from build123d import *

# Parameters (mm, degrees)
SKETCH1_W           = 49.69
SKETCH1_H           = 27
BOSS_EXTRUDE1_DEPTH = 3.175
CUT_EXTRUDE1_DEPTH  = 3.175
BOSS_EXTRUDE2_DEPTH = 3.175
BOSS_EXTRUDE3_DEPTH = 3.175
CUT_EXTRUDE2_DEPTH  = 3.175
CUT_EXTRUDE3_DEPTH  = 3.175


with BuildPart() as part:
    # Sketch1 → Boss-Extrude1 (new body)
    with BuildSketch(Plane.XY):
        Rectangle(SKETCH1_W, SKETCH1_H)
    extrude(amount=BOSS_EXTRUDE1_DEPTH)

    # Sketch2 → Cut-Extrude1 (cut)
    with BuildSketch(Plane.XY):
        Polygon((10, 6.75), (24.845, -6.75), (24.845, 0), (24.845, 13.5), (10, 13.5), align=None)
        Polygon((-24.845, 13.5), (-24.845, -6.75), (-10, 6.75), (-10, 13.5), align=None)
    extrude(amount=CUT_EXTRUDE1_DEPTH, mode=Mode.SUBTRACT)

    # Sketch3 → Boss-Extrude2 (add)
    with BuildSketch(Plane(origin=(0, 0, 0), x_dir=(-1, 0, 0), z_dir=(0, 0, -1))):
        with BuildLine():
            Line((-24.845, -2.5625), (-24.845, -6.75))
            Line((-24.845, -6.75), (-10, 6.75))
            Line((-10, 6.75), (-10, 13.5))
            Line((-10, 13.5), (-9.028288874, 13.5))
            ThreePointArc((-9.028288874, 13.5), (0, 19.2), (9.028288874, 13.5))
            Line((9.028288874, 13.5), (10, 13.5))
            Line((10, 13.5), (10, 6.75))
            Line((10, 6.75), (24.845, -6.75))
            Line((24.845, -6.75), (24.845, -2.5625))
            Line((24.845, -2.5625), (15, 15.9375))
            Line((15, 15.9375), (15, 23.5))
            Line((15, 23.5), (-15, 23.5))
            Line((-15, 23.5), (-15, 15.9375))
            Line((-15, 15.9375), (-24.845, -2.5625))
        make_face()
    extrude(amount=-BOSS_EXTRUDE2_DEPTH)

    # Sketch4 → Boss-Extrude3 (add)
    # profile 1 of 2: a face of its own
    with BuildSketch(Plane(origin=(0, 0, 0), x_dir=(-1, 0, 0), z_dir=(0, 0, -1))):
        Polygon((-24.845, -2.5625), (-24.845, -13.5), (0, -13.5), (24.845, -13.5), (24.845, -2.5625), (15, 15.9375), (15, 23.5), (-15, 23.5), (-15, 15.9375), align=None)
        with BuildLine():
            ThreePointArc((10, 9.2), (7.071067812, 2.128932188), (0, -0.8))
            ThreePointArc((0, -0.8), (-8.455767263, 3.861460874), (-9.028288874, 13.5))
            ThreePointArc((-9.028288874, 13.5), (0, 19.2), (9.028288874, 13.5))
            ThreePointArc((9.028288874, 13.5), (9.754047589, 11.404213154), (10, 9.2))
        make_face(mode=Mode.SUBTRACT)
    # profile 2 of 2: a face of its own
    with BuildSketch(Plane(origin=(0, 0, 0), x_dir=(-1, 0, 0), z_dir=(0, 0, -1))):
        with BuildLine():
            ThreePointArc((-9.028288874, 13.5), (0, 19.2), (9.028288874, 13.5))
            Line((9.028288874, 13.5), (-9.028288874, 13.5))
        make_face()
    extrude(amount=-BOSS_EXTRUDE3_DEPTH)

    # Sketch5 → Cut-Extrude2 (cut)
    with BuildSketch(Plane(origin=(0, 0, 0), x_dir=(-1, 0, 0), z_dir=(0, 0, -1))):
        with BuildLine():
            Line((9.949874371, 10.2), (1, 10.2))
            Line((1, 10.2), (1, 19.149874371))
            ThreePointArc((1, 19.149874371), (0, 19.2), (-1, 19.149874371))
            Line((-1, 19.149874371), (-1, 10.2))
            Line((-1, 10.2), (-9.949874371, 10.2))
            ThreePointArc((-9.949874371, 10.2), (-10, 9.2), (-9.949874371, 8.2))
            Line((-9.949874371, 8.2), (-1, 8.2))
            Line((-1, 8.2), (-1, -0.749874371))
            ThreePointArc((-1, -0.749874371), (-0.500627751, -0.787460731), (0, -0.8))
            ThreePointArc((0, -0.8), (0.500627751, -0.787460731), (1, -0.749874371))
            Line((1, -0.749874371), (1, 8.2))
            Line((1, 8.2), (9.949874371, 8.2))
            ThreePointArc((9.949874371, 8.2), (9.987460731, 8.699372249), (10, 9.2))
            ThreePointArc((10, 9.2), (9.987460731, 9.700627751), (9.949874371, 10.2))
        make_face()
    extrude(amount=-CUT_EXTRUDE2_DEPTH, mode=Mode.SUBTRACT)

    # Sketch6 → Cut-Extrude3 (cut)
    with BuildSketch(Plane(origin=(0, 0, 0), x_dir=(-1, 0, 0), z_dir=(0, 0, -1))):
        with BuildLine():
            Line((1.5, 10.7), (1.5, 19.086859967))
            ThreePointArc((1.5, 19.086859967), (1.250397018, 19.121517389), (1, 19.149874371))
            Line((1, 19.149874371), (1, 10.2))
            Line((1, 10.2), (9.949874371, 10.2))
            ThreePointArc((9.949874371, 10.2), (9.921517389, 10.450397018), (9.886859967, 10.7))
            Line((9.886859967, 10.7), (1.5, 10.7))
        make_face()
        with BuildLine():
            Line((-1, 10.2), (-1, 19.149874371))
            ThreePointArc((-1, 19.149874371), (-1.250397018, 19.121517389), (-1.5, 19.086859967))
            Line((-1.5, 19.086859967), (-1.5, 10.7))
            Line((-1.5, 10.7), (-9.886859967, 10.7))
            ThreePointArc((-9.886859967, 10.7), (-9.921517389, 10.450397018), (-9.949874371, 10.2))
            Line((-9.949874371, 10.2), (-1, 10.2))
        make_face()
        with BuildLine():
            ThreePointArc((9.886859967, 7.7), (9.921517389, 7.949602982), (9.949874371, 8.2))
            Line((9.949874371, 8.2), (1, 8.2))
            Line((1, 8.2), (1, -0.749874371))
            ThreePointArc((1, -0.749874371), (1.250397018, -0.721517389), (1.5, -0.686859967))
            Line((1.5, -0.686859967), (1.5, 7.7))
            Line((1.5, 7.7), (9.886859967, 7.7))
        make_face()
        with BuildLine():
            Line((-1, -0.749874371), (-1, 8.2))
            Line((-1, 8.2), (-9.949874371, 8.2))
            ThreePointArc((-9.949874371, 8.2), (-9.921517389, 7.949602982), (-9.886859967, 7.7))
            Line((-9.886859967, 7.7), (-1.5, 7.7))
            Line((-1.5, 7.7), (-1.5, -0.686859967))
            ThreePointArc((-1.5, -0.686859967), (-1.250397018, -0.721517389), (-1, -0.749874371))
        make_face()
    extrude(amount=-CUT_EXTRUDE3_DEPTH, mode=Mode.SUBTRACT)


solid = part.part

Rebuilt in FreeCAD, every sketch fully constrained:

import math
import FreeCAD as App
import Part
import Sketcher
Q = App.Units.Quantity

doc = App.newDocument("Part")
body = doc.addObject("PartDesign::Body", "Body")

sketch1 = body.newObject("Sketcher::SketchObject", "Sketch")
sketch1.AttachmentSupport = (doc.getObject("XY_Plane"), [""])
sketch1.MapMode = "FlatFace"
sketch1.addGeometry([
    Part.LineSegment(App.Vector(-25, 14, 0), App.Vector(-25, -14, 0)),
    Part.LineSegment(App.Vector(-25, -14, 0), App.Vector(25, -14, 0)),
    Part.LineSegment(App.Vector(25, -14, 0), App.Vector(25, 14, 0)),
    Part.LineSegment(App.Vector(25, 14, 0), App.Vector(-25, 14, 0)),
], False)
sketch1.addConstraint([
    Sketcher.Constraint("Coincident", 0, 2, 1, 1),
    Sketcher.Constraint("Coincident", 1, 2, 2, 1),
    Sketcher.Constraint("Coincident", 2, 2, 3, 1),
    Sketcher.Constraint("Coincident", 3, 2, 0, 1),
    Sketcher.Constraint("Vertical", 0),
    Sketcher.Constraint("Horizontal", 1),
    Sketcher.Constraint("Vertical", 2),
    Sketcher.Constraint("Horizontal", 3),
    Sketcher.Constraint("Symmetric", 0, 2, 2, 2, -1, 1),
    Sketcher.Constraint("DistanceY", 0, 2, 0, 1, Q("27 mm")),
    Sketcher.Constraint("DistanceX", 1, 1, 1, 2, Q("49.69 mm")),
])
pad1 = body.newObject("PartDesign::Pad", "Pad")
pad1.Profile = sketch1
pad1.Length = 3.175

sketch2 = body.newObject("Sketcher::SketchObject", "Sketch001")
sketch2.AttachmentSupport = (doc.getObject("XY_Plane"), [""])
sketch2.MapMode = "FlatFace"
sketch2.addGeometry([
    Part.LineSegment(App.Vector(10, 7, 0), App.Vector(25, -7, 0)),
    Part.LineSegment(App.Vector(25, -7, 0), App.Vector(25, 14, 0)),
    Part.LineSegment(App.Vector(25, 14, 0), App.Vector(10, 14, 0)),
    Part.LineSegment(App.Vector(10, 14, 0), App.Vector(10, 7, 0)),
    Part.LineSegment(App.Vector(-25, 14, 0), App.Vector(-25, -7, 0)),
    Part.LineSegment(App.Vector(-25, -7, 0), App.Vector(-10, 7, 0)),
    Part.LineSegment(App.Vector(-10, 7, 0), App.Vector(-10, 14, 0)),
    Part.LineSegment(App.Vector(-10, 14, 0), App.Vector(-25, 14, 0)),
], False)
sketch2.addConstraint([
    Sketcher.Constraint("Coincident", 0, 2, 1, 1),
    Sketcher.Constraint("Coincident", 1, 2, 2, 1),
    Sketcher.Constraint("Coincident", 2, 2, 3, 1),
    Sketcher.Constraint("Coincident", 3, 2, 0, 1),
    Sketcher.Constraint("Coincident", 4, 2, 5, 1),
    Sketcher.Constraint("Coincident", 5, 2, 6, 1),
    Sketcher.Constraint("Coincident", 6, 2, 7, 1),
    Sketcher.Constraint("Coincident", 7, 2, 4, 1),
    Sketcher.Constraint("Vertical", 1),
    Sketcher.Constraint("Horizontal", 2),
    Sketcher.Constraint("Vertical", 3),
    Sketcher.Constraint("Vertical", 4),
    Sketcher.Constraint("Vertical", 6),
    Sketcher.Constraint("Horizontal", 7),
    Sketcher.Constraint("Symmetric", 0, 2, 4, 2, -2),
    Sketcher.Constraint("Symmetric", 3, 2, 5, 2, -2),
    Sketcher.Constraint("Horizontal", 2, 2, 6, 2),
    Sketcher.Constraint("DistanceX", -1, 1, 2, 2, Q("10 mm")),
    Sketcher.Constraint("DistanceY", 1, 1, 1, 2, Q("20.25 mm")),
    Sketcher.Constraint("DistanceY", 3, 2, 3, 1, Q("6.75 mm")),
    Sketcher.Constraint("DistanceY", -1, 1, 1, 2, Q("13.5 mm")),
    Sketcher.Constraint("DistanceX", 2, 2, 2, 1, Q("14.845 mm")),
])
pocket1 = body.newObject("PartDesign::Pocket", "Pocket")
pocket1.Profile = sketch2
pocket1.Length = 3.175
pocket1.Reversed = True

sketch3 = body.newObject("Sketcher::SketchObject", "Sketch002")
sketch3.AttachmentSupport = (doc.getObject("XY_Plane"), [""])
sketch3.MapMode = "FlatFace"
sketch3.addGeometry([
    Part.LineSegment(App.Vector(24.8, -2.6, 0), App.Vector(24.8, -6.8, 0)),
    Part.LineSegment(App.Vector(24.8, -6.8, 0), App.Vector(10, 6.8, 0)),
    Part.LineSegment(App.Vector(10, 6.8, 0), App.Vector(10, 13.5, 0)),
    Part.LineSegment(App.Vector(10, 13.5, 0), App.Vector(9, 13.5, 0)),
    Part.ArcOfCircle(Part.Circle(App.Vector(0, 9.2, 0), App.Vector(0, 0, 1), 10), math.radians(25), math.radians(155)),
    Part.LineSegment(App.Vector(-9, 13.5, 0), App.Vector(-10, 13.5, 0)),
    Part.LineSegment(App.Vector(-10, 13.5, 0), App.Vector(-10, 6.8, 0)),
    Part.LineSegment(App.Vector(-10, 6.8, 0), App.Vector(-24.8, -6.8, 0)),
    Part.LineSegment(App.Vector(-24.8, -6.8, 0), App.Vector(-24.8, -2.6, 0)),
    Part.LineSegment(App.Vector(-24.8, -2.6, 0), App.Vector(-15, 15.9, 0)),
    Part.LineSegment(App.Vector(-15, 15.9, 0), App.Vector(-15, 23.5, 0)),
    Part.LineSegment(App.Vector(-15, 23.5, 0), App.Vector(15, 23.5, 0)),
    Part.LineSegment(App.Vector(15, 23.5, 0), App.Vector(15, 15.9, 0)),
    Part.LineSegment(App.Vector(15, 15.9, 0), App.Vector(24.8, -2.6, 0)),
], False)
sketch3.addConstraint([
    Sketcher.Constraint("Coincident", 0, 2, 1, 1),
    Sketcher.Constraint("Coincident", 1, 2, 2, 1),
    Sketcher.Constraint("Coincident", 2, 2, 3, 1),
    Sketcher.Constraint("Coincident", 3, 2, 4, 1),
    Sketcher.Constraint("Coincident", 4, 2, 5, 1),
    Sketcher.Constraint("Coincident", 5, 2, 6, 1),
    Sketcher.Constraint("Coincident", 6, 2, 7, 1),
    Sketcher.Constraint("Coincident", 7, 2, 8, 1),
    Sketcher.Constraint("Coincident", 8, 2, 9, 1),
    Sketcher.Constraint("Coincident", 9, 2, 10, 1),
    Sketcher.Constraint("Coincident", 10, 2, 11, 1),
    Sketcher.Constraint("Coincident", 11, 2, 12, 1),
    Sketcher.Constraint("Coincident", 12, 2, 13, 1),
    Sketcher.Constraint("Coincident", 13, 2, 0, 1),
    Sketcher.Constraint("Vertical", 0),
    Sketcher.Constraint("Vertical", 2),
    Sketcher.Constraint("Horizontal", 3),
    Sketcher.Constraint("Horizontal", 5),
    Sketcher.Constraint("Vertical", 6),
    Sketcher.Constraint("Vertical", 8),
    Sketcher.Constraint("Vertical", 10),
    Sketcher.Constraint("Horizontal", 11),
    Sketcher.Constraint("Vertical", 12),
    Sketcher.Constraint("Symmetric", 3, 2, 4, 2, -2),
    Sketcher.Constraint("Symmetric", 1, 2, 6, 2, -2),
    Sketcher.Constraint("Symmetric", 0, 2, 7, 2, -2),
    Sketcher.Constraint("Symmetric", 9, 2, 12, 2, -2),
    Sketcher.Constraint("Horizontal", 8, 2, 13, 2),
    Sketcher.Constraint("Radius", 4, Q("10 mm")),
    Sketcher.Constraint("DistanceX", 11, 1, 11, 2, Q("30 mm")),
    Sketcher.Constraint("DistanceX", -1, 1, 1, 2, Q("10 mm")),
    Sketcher.Constraint("DistanceY", 5, 2, 10, 2, Q("10 mm")),
    Sketcher.Constraint("DistanceY", 2, 1, 2, 2, Q("6.75 mm")),
    Sketcher.Constraint("DistanceY", -1, 1, 4, 3, Q("9.2 mm")),
    Sketcher.Constraint("DistanceY", -1, 1, 2, 2, Q("13.5 mm")),
    Sketcher.Constraint("DistanceY", 0, 2, 1, 2, Q("13.5 mm")),
    Sketcher.Constraint("DistanceY", 8, 2, 9, 2, Q("18.5 mm")),
    Sketcher.Constraint("DistanceY", 0, 2, 0, 1, Q("4.1875 mm")),
    Sketcher.Constraint("DistanceX", -1, 1, 0, 2, Q("24.845 mm")),
])
pad2 = body.newObject("PartDesign::Pad", "Pad001")
pad2.Profile = sketch3
pad2.Length = 3.175

sketch4 = body.newObject("Sketcher::SketchObject", "Sketch003")
sketch4.AttachmentSupport = (doc.getObject("XY_Plane"), [""])
sketch4.MapMode = "FlatFace"
sketch4.addGeometry([
    Part.LineSegment(App.Vector(24.8, -2.6, 0), App.Vector(24.8, -13.5, 0)),
    Part.LineSegment(App.Vector(24.8, -13.5, 0), App.Vector(-24.8, -13.5, 0)),
    Part.LineSegment(App.Vector(-24.8, -13.5, 0), App.Vector(-24.8, -2.6, 0)),
    Part.LineSegment(App.Vector(-24.8, -2.6, 0), App.Vector(-15, 15.9, 0)),
    Part.LineSegment(App.Vector(-15, 15.9, 0), App.Vector(-15, 23.5, 0)),
    Part.LineSegment(App.Vector(-15, 23.5, 0), App.Vector(15, 23.5, 0)),
    Part.LineSegment(App.Vector(15, 23.5, 0), App.Vector(15, 15.9, 0)),
    Part.LineSegment(App.Vector(15, 15.9, 0), App.Vector(24.8, -2.6, 0)),
    Part.ArcOfCircle(Part.Circle(App.Vector(0, 9.2, 0), App.Vector(0, 0, 1), 10), math.radians(155), math.radians(180)),
    Part.ArcOfCircle(Part.Circle(App.Vector(0, 9.2, 0), App.Vector(0, 0, 1), 10), math.radians(180), math.radians(270)),
    Part.ArcOfCircle(Part.Circle(App.Vector(0, 9.2, 0), App.Vector(0, 0, 1), 10), math.radians(-90), math.radians(25)),
    Part.LineSegment(App.Vector(9, 13.5, 0), App.Vector(-9, 13.5, 0)),
], False)
sketch4.addConstraint([
    Sketcher.Constraint("Coincident", 0, 2, 1, 1),
    Sketcher.Constraint("Coincident", 1, 2, 2, 1),
    Sketcher.Constraint("Coincident", 2, 2, 3, 1),
    Sketcher.Constraint("Coincident", 3, 2, 4, 1),
    Sketcher.Constraint("Coincident", 4, 2, 5, 1),
    Sketcher.Constraint("Coincident", 5, 2, 6, 1),
    Sketcher.Constraint("Coincident", 6, 2, 7, 1),
    Sketcher.Constraint("Coincident", 7, 2, 0, 1),
    Sketcher.Constraint("Tangent", 8, 2, 9, 1),
    Sketcher.Constraint("Tangent", 9, 2, 10, 1),
    Sketcher.Constraint("Coincident", 10, 2, 11, 1),
    Sketcher.Constraint("Coincident", 11, 2, 8, 1),
    Sketcher.Constraint("Vertical", 0),
    Sketcher.Constraint("Horizontal", 1),
    Sketcher.Constraint("Vertical", 2),
    Sketcher.Constraint("Vertical", 4),
    Sketcher.Constraint("Horizontal", 5),
    Sketcher.Constraint("Vertical", 6),
    Sketcher.Constraint("Horizontal", 11),
    Sketcher.Constraint("Coincident", 10, 3, 8, 3),
    Sketcher.Constraint("Symmetric", 3, 2, 6, 2, -2),
    Sketcher.Constraint("Symmetric", 2, 2, 7, 2, -2),
    Sketcher.Constraint("PointOnObject", 8, 3, -2),
    Sketcher.Constraint("PointOnObject", 9, 2, -2),
    Sketcher.Constraint("Horizontal", 10, 3, 8, 2),
    Sketcher.Constraint("Radius", 8, Q("10 mm")),
    Sketcher.Constraint("DistanceX", 5, 1, 5, 2, Q("30 mm")),
    Sketcher.Constraint("DistanceY", 10, 2, 5, 2, Q("10 mm")),
    Sketcher.Constraint("DistanceX", 1, 2, 1, 1, Q("49.69 mm")),
    Sketcher.Constraint("DistanceY", -1, 1, 8, 3, Q("9.2 mm")),
    Sketcher.Constraint("DistanceY", 0, 2, -1, 1, Q("13.5 mm")),
    Sketcher.Constraint("DistanceY", -1, 1, 4, 2, Q("23.5 mm")),
    Sketcher.Constraint("DistanceY", 2, 2, 3, 2, Q("18.5 mm")),
    Sketcher.Constraint("DistanceY", 0, 2, 0, 1, Q("10.9375 mm")),
])
pad3 = body.newObject("PartDesign::Pad", "Pad002")
pad3.Profile = sketch4
pad3.Length = 3.175

sketch5 = body.newObject("Sketcher::SketchObject", "Sketch004")
sketch5.AttachmentSupport = (doc.getObject("XY_Plane"), [""])
sketch5.MapMode = "FlatFace"
sketch5.addGeometry([
    Part.LineSegment(App.Vector(-9.9, 10.2, 0), App.Vector(-1, 10.2, 0)),
    Part.LineSegment(App.Vector(-1, 10.2, 0), App.Vector(-1, 19.1, 0)),
    Part.ArcOfCircle(Part.Circle(App.Vector(0, 9.2, 0), App.Vector(0, 0, 1), 10), math.radians(84.26), math.radians(95.74)),
    Part.LineSegment(App.Vector(1, 19.1, 0), App.Vector(1, 10.2, 0)),
    Part.LineSegment(App.Vector(1, 10.2, 0), App.Vector(9.9, 10.2, 0)),
    Part.ArcOfCircle(Part.Circle(App.Vector(0, 9.2, 0), App.Vector(0, 0, 1), 10), math.radians(-5.74), math.radians(5.74)),
    Part.LineSegment(App.Vector(9.9, 8.2, 0), App.Vector(1, 8.2, 0)),
    Part.LineSegment(App.Vector(1, 8.2, 0), App.Vector(1, -0.7, 0)),
    Part.ArcOfCircle(Part.Circle(App.Vector(0, 9.2, 0), App.Vector(0, 0, 1), 10), math.radians(-90), math.radians(-84.26)),
    Part.ArcOfCircle(Part.Circle(App.Vector(0, 9.2, 0), App.Vector(0, 0, 1), 10), math.radians(-95.74), math.radians(-90)),
    Part.LineSegment(App.Vector(-1, -0.7, 0), App.Vector(-1, 8.2, 0)),
    Part.LineSegment(App.Vector(-1, 8.2, 0), App.Vector(-9.9, 8.2, 0)),
    Part.ArcOfCircle(Part.Circle(App.Vector(0, 9.2, 0), App.Vector(0, 0, 1), 10), math.radians(-180), math.radians(-174.26)),
    Part.ArcOfCircle(Part.Circle(App.Vector(0, 9.2, 0), App.Vector(0, 0, 1), 10), math.radians(174.26), math.radians(180)),
], False)
sketch5.addConstraint([
    Sketcher.Constraint("Coincident", 0, 2, 1, 1),
    Sketcher.Constraint("Coincident", 1, 2, 2, 2),
    Sketcher.Constraint("Coincident", 2, 1, 3, 1),
    Sketcher.Constraint("Coincident", 3, 2, 4, 1),
    Sketcher.Constraint("Coincident", 4, 2, 5, 2),
    Sketcher.Constraint("Coincident", 5, 1, 6, 1),
    Sketcher.Constraint("Coincident", 6, 2, 7, 1),
    Sketcher.Constraint("Coincident", 7, 2, 8, 2),
    Sketcher.Constraint("Tangent", 8, 1, 9, 2),
    Sketcher.Constraint("Coincident", 9, 1, 10, 1),
    Sketcher.Constraint("Coincident", 10, 2, 11, 1),
    Sketcher.Constraint("Coincident", 11, 2, 12, 2),
    Sketcher.Constraint("Tangent", 12, 1, 13, 2),
    Sketcher.Constraint("Coincident", 13, 1, 0, 1),
    Sketcher.Constraint("Horizontal", 0),
    Sketcher.Constraint("Vertical", 1),
    Sketcher.Constraint("Vertical", 3),
    Sketcher.Constraint("Horizontal", 4),
    Sketcher.Constraint("Horizontal", 6),
    Sketcher.Constraint("Vertical", 7),
    Sketcher.Constraint("Vertical", 10),
    Sketcher.Constraint("Horizontal", 11),
    Sketcher.Constraint("Coincident", 5, 3, 2, 3),
    Sketcher.Constraint("Coincident", 8, 3, 2, 3),
    Sketcher.Constraint("Coincident", 12, 3, 2, 3),
    Sketcher.Constraint("Equal", 2, 5),
    Sketcher.Constraint("Equal", 5, 8),
    Sketcher.Constraint("Equal", 8, 9),
    Sketcher.Constraint("Equal", 9, 12),
    Sketcher.Constraint("Equal", 12, 13),
    Sketcher.Constraint("Symmetric", 1, 2, 2, 1, -2),
    Sketcher.Constraint("Symmetric", 6, 2, 10, 2, -2),
    Sketcher.Constraint("PointOnObject", 8, 1, -2),
    Sketcher.Constraint("Horizontal", 0, 2, 3, 2),
    Sketcher.Constraint("Horizontal", 13, 3, 12, 1),
    Sketcher.Constraint("Vertical", 4, 2, 5, 1),
    Sketcher.Constraint("Vertical", 3, 2, 6, 2),
    Sketcher.Constraint("Equal", 11, 1),
    Sketcher.Constraint("Radius", 2, Q("10 mm")),
    Sketcher.Constraint("DistanceX", 0, 2, -1, 1, Q("1 mm")),
    Sketcher.Constraint("DistanceY", -1, 1, 2, 3, Q("9.2 mm")),
])
pocket2 = body.newObject("PartDesign::Pocket", "Pocket001")
pocket2.Profile = sketch5
pocket2.Length = 3.175
pocket2.Reversed = True

sketch6 = body.newObject("Sketcher::SketchObject", "Sketch005")
sketch6.AttachmentSupport = (doc.getObject("XY_Plane"), [""])
sketch6.MapMode = "FlatFace"
sketch6.addGeometry([
    Part.LineSegment(App.Vector(-1.5, 10.7, 0), App.Vector(-1.5, 19.1, 0)),
    Part.ArcOfCircle(Part.Circle(App.Vector(0, 9.2, 0), App.Vector(0, 0, 1), 10), math.radians(95.74), math.radians(98.63)),
    Part.LineSegment(App.Vector(-1, 19.1, 0), App.Vector(-1, 10.2, 0)),
    Part.LineSegment(App.Vector(-1, 10.2, 0), App.Vector(-9.9, 10.2, 0)),
    Part.ArcOfCircle(Part.Circle(App.Vector(0, 9.2, 0), App.Vector(0, 0, 1), 10), math.radians(171.37), math.radians(174.26)),
    Part.LineSegment(App.Vector(-9.9, 10.7, 0), App.Vector(-1.5, 10.7, 0)),
    Part.LineSegment(App.Vector(1, 10.2, 0), App.Vector(1, 19.1, 0)),
    Part.ArcOfCircle(Part.Circle(App.Vector(0, 9.2, 0), App.Vector(0, 0, 1), 10), math.radians(81.37), math.radians(84.26)),
    Part.LineSegment(App.Vector(1.5, 19.1, 0), App.Vector(1.5, 10.7, 0)),
    Part.LineSegment(App.Vector(1.5, 10.7, 0), App.Vector(9.9, 10.7, 0)),
    Part.ArcOfCircle(Part.Circle(App.Vector(0, 9.2, 0), App.Vector(0, 0, 1), 10), math.radians(5.74), math.radians(8.63)),
    Part.LineSegment(App.Vector(9.9, 10.2, 0), App.Vector(1, 10.2, 0)),
    Part.ArcOfCircle(Part.Circle(App.Vector(0, 9.2, 0), App.Vector(0, 0, 1), 10), math.radians(-174.26), math.radians(-171.37)),
    Part.LineSegment(App.Vector(-9.9, 8.2, 0), App.Vector(-1, 8.2, 0)),
    Part.LineSegment(App.Vector(-1, 8.2, 0), App.Vector(-1, -0.7, 0)),
    Part.ArcOfCircle(Part.Circle(App.Vector(0, 9.2, 0), App.Vector(0, 0, 1), 10), math.radians(-98.63), math.radians(-95.74)),
    Part.LineSegment(App.Vector(-1.5, -0.7, 0), App.Vector(-1.5, 7.7, 0)),
    Part.LineSegment(App.Vector(-1.5, 7.7, 0), App.Vector(-9.9, 7.7, 0)),
    Part.LineSegment(App.Vector(1, -0.7, 0), App.Vector(1, 8.2, 0)),
    Part.LineSegment(App.Vector(1, 8.2, 0), App.Vector(9.9, 8.2, 0)),
    Part.ArcOfCircle(Part.Circle(App.Vector(0, 9.2, 0), App.Vector(0, 0, 1), 10), math.radians(-8.63), math.radians(-5.74)),
    Part.LineSegment(App.Vector(9.9, 7.7, 0), App.Vector(1.5, 7.7, 0)),
    Part.LineSegment(App.Vector(1.5, 7.7, 0), App.Vector(1.5, -0.7, 0)),
    Part.ArcOfCircle(Part.Circle(App.Vector(0, 9.2, 0), App.Vector(0, 0, 1), 10), math.radians(-84.26), math.radians(-81.37)),
], False)
sketch6.addConstraint([
    Sketcher.Constraint("Coincident", 0, 2, 1, 2),
    Sketcher.Constraint("Coincident", 1, 1, 2, 1),
    Sketcher.Constraint("Coincident", 2, 2, 3, 1),
    Sketcher.Constraint("Coincident", 3, 2, 4, 2),
    Sketcher.Constraint("Coincident", 4, 1, 5, 1),
    Sketcher.Constraint("Coincident", 5, 2, 0, 1),
    Sketcher.Constraint("Coincident", 6, 2, 7, 2),
    Sketcher.Constraint("Coincident", 7, 1, 8, 1),
    Sketcher.Constraint("Coincident", 8, 2, 9, 1),
    Sketcher.Constraint("Coincident", 9, 2, 10, 2),
    Sketcher.Constraint("Coincident", 10, 1, 11, 1),
    Sketcher.Constraint("Coincident", 11, 2, 6, 1),
    Sketcher.Constraint("Coincident", 12, 1, 13, 1),
    Sketcher.Constraint("Coincident", 13, 2, 14, 1),
    Sketcher.Constraint("Coincident", 14, 2, 15, 2),
    Sketcher.Constraint("Coincident", 15, 1, 16, 1),
    Sketcher.Constraint("Coincident", 16, 2, 17, 1),
    Sketcher.Constraint("Coincident", 17, 2, 12, 2),
    Sketcher.Constraint("Coincident", 18, 2, 19, 1),
    Sketcher.Constraint("Coincident", 19, 2, 20, 2),
    Sketcher.Constraint("Coincident", 20, 1, 21, 1),
    Sketcher.Constraint("Coincident", 21, 2, 22, 1),
    Sketcher.Constraint("Coincident", 22, 2, 23, 2),
    Sketcher.Constraint("Coincident", 23, 1, 18, 1),
    Sketcher.Constraint("Vertical", 0),
    Sketcher.Constraint("Vertical", 2),
    Sketcher.Constraint("Horizontal", 3),
    Sketcher.Constraint("Horizontal", 5),
    Sketcher.Constraint("Vertical", 6),
    Sketcher.Constraint("Vertical", 8),
    Sketcher.Constraint("Horizontal", 9),
    Sketcher.Constraint("Horizontal", 11),
    Sketcher.Constraint("Horizontal", 13),
    Sketcher.Constraint("Vertical", 14),
    Sketcher.Constraint("Vertical", 16),
    Sketcher.Constraint("Horizontal", 17),
    Sketcher.Constraint("Vertical", 18),
    Sketcher.Constraint("Horizontal", 19),
    Sketcher.Constraint("Horizontal", 21),
    Sketcher.Constraint("Vertical", 22),
    Sketcher.Constraint("Coincident", 4, 3, 1, 3),
    Sketcher.Constraint("Coincident", 7, 3, 1, 3),
    Sketcher.Constraint("Coincident", 10, 3, 1, 3),
    Sketcher.Constraint("Coincident", 12, 3, 1, 3),
    Sketcher.Constraint("Coincident", 15, 3, 1, 3),
    Sketcher.Constraint("Coincident", 20, 3, 1, 3),
    Sketcher.Constraint("Coincident", 23, 3, 1, 3),
    Sketcher.Constraint("Equal", 1, 4),
    Sketcher.Constraint("Equal", 4, 7),
    Sketcher.Constraint("Equal", 7, 10),
    Sketcher.Constraint("Equal", 10, 12),
    Sketcher.Constraint("Equal", 12, 15),
    Sketcher.Constraint("Equal", 15, 20),
    Sketcher.Constraint("Equal", 20, 23),
    Sketcher.Constraint("Symmetric", 1, 1, 6, 2, -2),
    Sketcher.Constraint("Symmetric", 5, 2, 8, 2, -2),
    Sketcher.Constraint("Symmetric", 13, 2, 18, 2, -2),
    Sketcher.Constraint("Symmetric", 16, 2, 21, 2, -2),
    Sketcher.Constraint("Horizontal", 3, 2, 10, 1),
    Sketcher.Constraint("Vertical", 3, 2, 12, 1),
    Sketcher.Constraint("Vertical", 2, 2, 13, 2),
    Sketcher.Constraint("Vertical", 5, 2, 15, 1),
    Sketcher.Constraint("Vertical", 4, 1, 17, 2),
    Sketcher.Constraint("Equal", 21, 0),
    Sketcher.Constraint("Equal", 19, 2),
    Sketcher.Constraint("Radius", 1, Q("10 mm")),
    Sketcher.Constraint("DistanceX", 1, 1, -1, 1, Q("1 mm")),
    Sketcher.Constraint("DistanceX", 0, 2, 7, 1, Q("3 mm")),
    Sketcher.Constraint("DistanceY", -1, 1, 1, 3, Q("9.2 mm")),
])
pocket3 = body.newObject("PartDesign::Pocket", "Pocket002")
pocket3.Profile = sketch6
pocket3.Length = 3.175
pocket3.Reversed = True

doc.recompute()
